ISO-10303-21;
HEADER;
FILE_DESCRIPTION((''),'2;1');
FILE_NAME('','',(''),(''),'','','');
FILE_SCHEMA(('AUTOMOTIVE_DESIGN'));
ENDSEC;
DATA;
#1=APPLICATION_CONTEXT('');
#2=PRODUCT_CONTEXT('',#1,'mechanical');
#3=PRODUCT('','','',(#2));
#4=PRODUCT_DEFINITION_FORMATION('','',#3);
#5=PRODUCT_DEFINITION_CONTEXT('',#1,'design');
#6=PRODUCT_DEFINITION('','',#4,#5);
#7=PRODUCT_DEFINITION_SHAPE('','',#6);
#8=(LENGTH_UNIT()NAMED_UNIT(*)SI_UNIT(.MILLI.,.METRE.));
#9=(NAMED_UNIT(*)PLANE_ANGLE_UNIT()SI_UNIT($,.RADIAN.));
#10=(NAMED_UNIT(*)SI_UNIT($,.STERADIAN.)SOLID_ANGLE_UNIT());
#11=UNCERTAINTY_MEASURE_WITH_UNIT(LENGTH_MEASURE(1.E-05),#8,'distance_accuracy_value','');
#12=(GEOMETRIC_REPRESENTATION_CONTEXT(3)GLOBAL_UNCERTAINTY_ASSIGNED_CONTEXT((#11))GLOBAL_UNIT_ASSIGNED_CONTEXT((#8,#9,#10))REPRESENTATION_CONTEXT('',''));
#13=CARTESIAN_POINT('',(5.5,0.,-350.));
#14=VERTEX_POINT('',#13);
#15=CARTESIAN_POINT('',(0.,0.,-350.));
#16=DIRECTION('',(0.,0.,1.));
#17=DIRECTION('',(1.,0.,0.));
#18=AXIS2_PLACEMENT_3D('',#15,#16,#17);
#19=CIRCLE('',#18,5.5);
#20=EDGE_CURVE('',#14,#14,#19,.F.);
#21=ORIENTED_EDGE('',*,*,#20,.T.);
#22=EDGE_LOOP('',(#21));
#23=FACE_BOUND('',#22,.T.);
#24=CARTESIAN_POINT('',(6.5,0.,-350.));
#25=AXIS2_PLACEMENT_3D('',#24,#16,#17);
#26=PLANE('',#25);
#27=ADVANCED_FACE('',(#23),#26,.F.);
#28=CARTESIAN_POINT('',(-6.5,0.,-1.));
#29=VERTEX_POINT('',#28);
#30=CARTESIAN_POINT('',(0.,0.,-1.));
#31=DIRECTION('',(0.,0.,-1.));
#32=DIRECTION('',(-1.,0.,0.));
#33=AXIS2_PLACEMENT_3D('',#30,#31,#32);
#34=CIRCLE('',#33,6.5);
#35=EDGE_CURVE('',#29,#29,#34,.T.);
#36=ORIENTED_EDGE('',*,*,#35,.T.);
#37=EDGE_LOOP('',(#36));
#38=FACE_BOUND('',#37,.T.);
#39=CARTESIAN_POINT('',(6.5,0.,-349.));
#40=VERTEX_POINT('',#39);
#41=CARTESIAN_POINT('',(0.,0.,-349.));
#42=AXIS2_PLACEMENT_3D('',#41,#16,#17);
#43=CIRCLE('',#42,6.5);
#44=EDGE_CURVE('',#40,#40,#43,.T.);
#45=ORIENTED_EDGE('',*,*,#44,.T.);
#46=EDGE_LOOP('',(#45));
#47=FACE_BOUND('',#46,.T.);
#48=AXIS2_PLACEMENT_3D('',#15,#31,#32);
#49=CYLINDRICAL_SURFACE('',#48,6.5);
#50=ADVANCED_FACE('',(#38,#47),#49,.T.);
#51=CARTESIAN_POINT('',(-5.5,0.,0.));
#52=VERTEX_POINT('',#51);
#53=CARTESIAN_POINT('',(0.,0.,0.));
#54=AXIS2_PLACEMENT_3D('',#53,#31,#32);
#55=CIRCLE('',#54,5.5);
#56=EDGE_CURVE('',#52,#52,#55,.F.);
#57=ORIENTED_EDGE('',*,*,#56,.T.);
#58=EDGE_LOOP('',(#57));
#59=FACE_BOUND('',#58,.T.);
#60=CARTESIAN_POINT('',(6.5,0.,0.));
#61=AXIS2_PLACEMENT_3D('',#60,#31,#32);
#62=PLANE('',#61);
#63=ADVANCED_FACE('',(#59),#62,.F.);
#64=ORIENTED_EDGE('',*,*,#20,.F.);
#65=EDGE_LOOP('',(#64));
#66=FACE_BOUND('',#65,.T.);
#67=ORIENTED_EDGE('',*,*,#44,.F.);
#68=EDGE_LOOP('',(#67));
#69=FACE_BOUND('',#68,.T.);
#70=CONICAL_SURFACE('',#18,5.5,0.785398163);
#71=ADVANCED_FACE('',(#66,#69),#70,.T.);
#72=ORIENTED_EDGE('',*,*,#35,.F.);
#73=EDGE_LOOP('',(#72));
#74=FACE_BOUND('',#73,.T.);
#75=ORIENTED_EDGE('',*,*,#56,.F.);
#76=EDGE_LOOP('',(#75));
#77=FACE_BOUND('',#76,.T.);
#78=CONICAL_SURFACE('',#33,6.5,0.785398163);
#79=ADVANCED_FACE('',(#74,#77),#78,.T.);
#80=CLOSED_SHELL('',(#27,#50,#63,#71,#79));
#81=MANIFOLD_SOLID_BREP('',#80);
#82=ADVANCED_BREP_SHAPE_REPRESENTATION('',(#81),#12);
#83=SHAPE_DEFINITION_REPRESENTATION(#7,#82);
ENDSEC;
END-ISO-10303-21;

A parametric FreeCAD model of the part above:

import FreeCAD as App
import Part
import Sketcher
from FreeCAD import Vector
Q = App.Units.Quantity


def edges_at(feature, points):
    """Names of the edges that pass closest to the given points."""
    edges = feature.Shape.Edges
    near = lambda p: min(range(len(edges)), key=lambda i: edges[i].distToShape(Part.Vertex(*p))[0])
    return sorted({f"Edge{near(p) + 1}" for p in points})

doc = App.newDocument("Part")
body = doc.addObject("PartDesign::Body", "Body")

sketch1 = body.newObject("Sketcher::SketchObject", "Sketch")
sketch1.AttachmentSupport = (doc.getObject("XZ_Plane"), [""])
sketch1.MapMode = "FlatFace"
sketch1.addGeometry([
    Part.LineSegment(Vector(0, -350, 0), Vector(0, 0, 0)),
    Part.LineSegment(Vector(0, 0, 0), Vector(6, 0, 0)),
    Part.LineSegment(Vector(6, 0, 0), Vector(6, -350, 0)),
    Part.LineSegment(Vector(6, -350, 0), Vector(0, -350, 0)),
], False)
sketch1.addConstraint([
    Sketcher.Constraint("Coincident", 0, 2, 1, 1),
    Sketcher.Constraint("Coincident", 1, 2, 2, 1),
    Sketcher.Constraint("Coincident", 2, 2, 3, 1),
    Sketcher.Constraint("Coincident", 3, 2, 0, 1),
    Sketcher.Constraint("Vertical", 0),
    Sketcher.Constraint("Horizontal", 1),
    Sketcher.Constraint("Vertical", 2),
    Sketcher.Constraint("Horizontal", 3),
    Sketcher.Constraint("Coincident", 0, 2, -1, 1),
    Sketcher.Constraint("DistanceY", 0, 1, 0, 2, Q("350 mm")),
    Sketcher.Constraint("DistanceX", 1, 1, 1, 2, Q("6.5 mm")),
])
revolution = body.newObject("PartDesign::Revolution", "Revolution")
revolution.Profile = sketch1
revolution.ReferenceAxis = (sketch1, ["V_Axis"])
revolution.Angle = 360
doc.recompute()

chamfer = body.newObject("PartDesign::Chamfer", "Chamfer")
chamfer.Base = (revolution, edges_at(revolution, [(6.5, 0, 0), (6.5, 0, -350)]))
chamfer.Size = 1

doc.recompute()
